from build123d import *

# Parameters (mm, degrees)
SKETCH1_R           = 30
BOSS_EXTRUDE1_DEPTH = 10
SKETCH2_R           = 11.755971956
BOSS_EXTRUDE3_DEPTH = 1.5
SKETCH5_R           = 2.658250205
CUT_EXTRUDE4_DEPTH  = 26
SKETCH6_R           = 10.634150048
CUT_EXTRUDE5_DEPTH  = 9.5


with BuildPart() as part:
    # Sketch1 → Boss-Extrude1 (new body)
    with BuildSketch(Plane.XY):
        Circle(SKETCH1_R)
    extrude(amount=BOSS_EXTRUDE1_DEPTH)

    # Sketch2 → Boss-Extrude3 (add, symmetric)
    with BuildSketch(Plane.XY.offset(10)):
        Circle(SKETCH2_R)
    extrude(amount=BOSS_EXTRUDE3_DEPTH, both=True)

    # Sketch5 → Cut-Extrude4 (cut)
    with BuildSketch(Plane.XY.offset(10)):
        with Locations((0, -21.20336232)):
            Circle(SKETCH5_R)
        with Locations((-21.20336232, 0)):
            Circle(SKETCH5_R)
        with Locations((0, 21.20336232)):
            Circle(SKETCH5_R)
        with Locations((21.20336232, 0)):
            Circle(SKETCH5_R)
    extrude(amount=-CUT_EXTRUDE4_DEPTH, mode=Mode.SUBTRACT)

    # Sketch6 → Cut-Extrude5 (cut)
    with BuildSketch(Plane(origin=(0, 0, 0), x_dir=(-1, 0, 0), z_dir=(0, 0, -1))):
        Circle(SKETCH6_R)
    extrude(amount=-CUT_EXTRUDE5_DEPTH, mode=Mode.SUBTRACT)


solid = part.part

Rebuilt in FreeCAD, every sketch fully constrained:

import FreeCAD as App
import Part
import Sketcher
from FreeCAD import Vector

doc = App.newDocument("Part")
body = doc.addObject("PartDesign::Body", "Body")

# Sketch on XY plane
sketch1 = body.newObject("Sketcher::SketchObject", "Sketch")
sketch1.AttachmentSupport = (doc.getObject("XY_Plane"), [""])
sketch1.MapMode = "FlatFace"
sketch1.addGeometry(Part.Circle(Vector(0, 0, 0), Vector(0, 0, 1), 30), False)
sketch1.addConstraint([
    Sketcher.Constraint("Coincident", 0, 3, -1, 1),
    Sketcher.Constraint("Diameter", 0, 60.0),
])
pad1 = body.newObject("PartDesign::Pad", "Pad")
pad1.Profile = sketch1
pad1.Length = 10

# Sketch on XY plane
sketch2 = body.newObject("Sketcher::SketchObject", "Sketch001")
sketch2.AttachmentSupport = (doc.getObject("XY_Plane"), [""])
sketch2.MapMode = "FlatFace"
sketch2.AttachmentOffset = App.Placement(Vector(0, 0, 10), App.Rotation())
sketch2.addGeometry(Part.Circle(Vector(0, 0, 0), Vector(0, 0, 1), 11.755972), False)
sketch2.addConstraint([
    Sketcher.Constraint("Coincident", 0, 3, -1, 1),
    Sketcher.Constraint("Diameter", 0, 23.511944),
])
pad2 = body.newObject("PartDesign::Pad", "Pad001")
pad2.Profile = sketch2
pad2.Length = 3
pad2.Midplane = True

# Sketch on XY plane
sketch3 = body.newObject("Sketcher::SketchObject", "Sketch002")
sketch3.AttachmentSupport = (doc.getObject("XY_Plane"), [""])
sketch3.MapMode = "FlatFace"
sketch3.AttachmentOffset = App.Placement(Vector(0, 0, 10), App.Rotation())
sketch3.addGeometry([
    Part.Circle(Vector(0, -21.203362, 0), Vector(0, 0, 1), 2.65825),
    Part.Circle(Vector(-21.203362, 0, 0), Vector(0, 0, 1), 2.65825),
    Part.Circle(Vector(0, 21.203362, 0), Vector(0, 0, 1), 2.65825),
    Part.Circle(Vector(21.203362, 0, 0), Vector(0, 0, 1), 2.65825),
], False)
sketch3.addConstraint([
    Sketcher.Constraint("Equal", 0, 1),
    Sketcher.Constraint("Equal", 1, 2),
    Sketcher.Constraint("Equal", 2, 3),
    Sketcher.Constraint("Symmetric", 0, 3, 2, 3, -1, 1),
    Sketcher.Constraint("Symmetric", 1, 3, 3, 3, -1, 1),
    Sketcher.Constraint("PointOnObject", 0, 3, -2),
    Sketcher.Constraint("PointOnObject", 1, 3, -1),
    Sketcher.Constraint("Diameter", 0, 5.3165),
    Sketcher.Constraint("DistanceY", 0, 3, -1, 1, 21.203362),
    Sketcher.Constraint("DistanceX", 1, 3, -1, 1, 21.203362),
])
pocket1 = body.newObject("PartDesign::Pocket", "Pocket")
pocket1.Profile = sketch3
pocket1.Length = 26

# Sketch on XY plane
sketch4 = body.newObject("Sketcher::SketchObject", "Sketch003")
sketch4.AttachmentSupport = (doc.getObject("XY_Plane"), [""])
sketch4.MapMode = "FlatFace"
sketch4.addGeometry(Part.Circle(Vector(0, 0, 0), Vector(0, 0, 1), 10.63415), False)
sketch4.addConstraint([
    Sketcher.Constraint("Coincident", 0, 3, -1, 1),
    Sketcher.Constraint("Diameter", 0, 21.2683),
])
pocket2 = body.newObject("PartDesign::Pocket", "Pocket001")
pocket2.Profile = sketch4
pocket2.Length = 9.5
pocket2.Reversed = True

doc.recompute()
